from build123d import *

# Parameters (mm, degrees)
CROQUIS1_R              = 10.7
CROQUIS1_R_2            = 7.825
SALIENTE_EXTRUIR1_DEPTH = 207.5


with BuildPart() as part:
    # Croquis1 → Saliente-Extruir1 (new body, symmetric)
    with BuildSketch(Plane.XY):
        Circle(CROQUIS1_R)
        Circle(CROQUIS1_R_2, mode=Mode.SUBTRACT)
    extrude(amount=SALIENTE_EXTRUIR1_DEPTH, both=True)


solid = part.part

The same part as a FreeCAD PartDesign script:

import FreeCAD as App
import Part
import Sketcher

doc = App.newDocument("Part")
params = doc.addObject("Spreadsheet::Sheet", "Params")
for row, (alias, value) in enumerate([
    ("sketch1_diameter", "21.4 mm"),
    ("sketch1_diameter2", "15.65 mm"),
    ("pad1_length", "415 mm"),
], start=1):
    params.set(f"A{row}", alias)
    params.set(f"B{row}", "=" + value)
    params.setAlias(f"B{row}", alias)

body = doc.addObject("PartDesign::Body", "Body")

# Sketch on XY plane
sketch1 = body.newObject("Sketcher::SketchObject", "Sketch")
sketch1.AttachmentSupport = (doc.getObject("XY_Plane"), [""])
sketch1.MapMode = "FlatFace"
sketch1.addGeometry([
    Part.Circle(App.Vector(0, 0, 0), App.Vector(0, 0, 1), 11),
    Part.Circle(App.Vector(0, 0, 0), App.Vector(0, 0, 1), 8),
], False)
sketch1.addConstraint([
    Sketcher.Constraint("Coincident", 0, 3, -1, 1),
    Sketcher.Constraint("Coincident", 1, 3, -1, 1),
    Sketcher.Constraint("Diameter", 0, 21.4),
    Sketcher.Constraint("Diameter", 1, 15.65),
])
sketch1.setExpression("Constraints[2]", "Params.sketch1_diameter")
sketch1.setExpression("Constraints[3]", "Params.sketch1_diameter2")
pad1 = body.newObject("PartDesign::Pad", "Pad")
pad1.Profile = sketch1
pad1.setExpression("Length", "Params.pad1_length")
pad1.Midplane = True

doc.recompute()
